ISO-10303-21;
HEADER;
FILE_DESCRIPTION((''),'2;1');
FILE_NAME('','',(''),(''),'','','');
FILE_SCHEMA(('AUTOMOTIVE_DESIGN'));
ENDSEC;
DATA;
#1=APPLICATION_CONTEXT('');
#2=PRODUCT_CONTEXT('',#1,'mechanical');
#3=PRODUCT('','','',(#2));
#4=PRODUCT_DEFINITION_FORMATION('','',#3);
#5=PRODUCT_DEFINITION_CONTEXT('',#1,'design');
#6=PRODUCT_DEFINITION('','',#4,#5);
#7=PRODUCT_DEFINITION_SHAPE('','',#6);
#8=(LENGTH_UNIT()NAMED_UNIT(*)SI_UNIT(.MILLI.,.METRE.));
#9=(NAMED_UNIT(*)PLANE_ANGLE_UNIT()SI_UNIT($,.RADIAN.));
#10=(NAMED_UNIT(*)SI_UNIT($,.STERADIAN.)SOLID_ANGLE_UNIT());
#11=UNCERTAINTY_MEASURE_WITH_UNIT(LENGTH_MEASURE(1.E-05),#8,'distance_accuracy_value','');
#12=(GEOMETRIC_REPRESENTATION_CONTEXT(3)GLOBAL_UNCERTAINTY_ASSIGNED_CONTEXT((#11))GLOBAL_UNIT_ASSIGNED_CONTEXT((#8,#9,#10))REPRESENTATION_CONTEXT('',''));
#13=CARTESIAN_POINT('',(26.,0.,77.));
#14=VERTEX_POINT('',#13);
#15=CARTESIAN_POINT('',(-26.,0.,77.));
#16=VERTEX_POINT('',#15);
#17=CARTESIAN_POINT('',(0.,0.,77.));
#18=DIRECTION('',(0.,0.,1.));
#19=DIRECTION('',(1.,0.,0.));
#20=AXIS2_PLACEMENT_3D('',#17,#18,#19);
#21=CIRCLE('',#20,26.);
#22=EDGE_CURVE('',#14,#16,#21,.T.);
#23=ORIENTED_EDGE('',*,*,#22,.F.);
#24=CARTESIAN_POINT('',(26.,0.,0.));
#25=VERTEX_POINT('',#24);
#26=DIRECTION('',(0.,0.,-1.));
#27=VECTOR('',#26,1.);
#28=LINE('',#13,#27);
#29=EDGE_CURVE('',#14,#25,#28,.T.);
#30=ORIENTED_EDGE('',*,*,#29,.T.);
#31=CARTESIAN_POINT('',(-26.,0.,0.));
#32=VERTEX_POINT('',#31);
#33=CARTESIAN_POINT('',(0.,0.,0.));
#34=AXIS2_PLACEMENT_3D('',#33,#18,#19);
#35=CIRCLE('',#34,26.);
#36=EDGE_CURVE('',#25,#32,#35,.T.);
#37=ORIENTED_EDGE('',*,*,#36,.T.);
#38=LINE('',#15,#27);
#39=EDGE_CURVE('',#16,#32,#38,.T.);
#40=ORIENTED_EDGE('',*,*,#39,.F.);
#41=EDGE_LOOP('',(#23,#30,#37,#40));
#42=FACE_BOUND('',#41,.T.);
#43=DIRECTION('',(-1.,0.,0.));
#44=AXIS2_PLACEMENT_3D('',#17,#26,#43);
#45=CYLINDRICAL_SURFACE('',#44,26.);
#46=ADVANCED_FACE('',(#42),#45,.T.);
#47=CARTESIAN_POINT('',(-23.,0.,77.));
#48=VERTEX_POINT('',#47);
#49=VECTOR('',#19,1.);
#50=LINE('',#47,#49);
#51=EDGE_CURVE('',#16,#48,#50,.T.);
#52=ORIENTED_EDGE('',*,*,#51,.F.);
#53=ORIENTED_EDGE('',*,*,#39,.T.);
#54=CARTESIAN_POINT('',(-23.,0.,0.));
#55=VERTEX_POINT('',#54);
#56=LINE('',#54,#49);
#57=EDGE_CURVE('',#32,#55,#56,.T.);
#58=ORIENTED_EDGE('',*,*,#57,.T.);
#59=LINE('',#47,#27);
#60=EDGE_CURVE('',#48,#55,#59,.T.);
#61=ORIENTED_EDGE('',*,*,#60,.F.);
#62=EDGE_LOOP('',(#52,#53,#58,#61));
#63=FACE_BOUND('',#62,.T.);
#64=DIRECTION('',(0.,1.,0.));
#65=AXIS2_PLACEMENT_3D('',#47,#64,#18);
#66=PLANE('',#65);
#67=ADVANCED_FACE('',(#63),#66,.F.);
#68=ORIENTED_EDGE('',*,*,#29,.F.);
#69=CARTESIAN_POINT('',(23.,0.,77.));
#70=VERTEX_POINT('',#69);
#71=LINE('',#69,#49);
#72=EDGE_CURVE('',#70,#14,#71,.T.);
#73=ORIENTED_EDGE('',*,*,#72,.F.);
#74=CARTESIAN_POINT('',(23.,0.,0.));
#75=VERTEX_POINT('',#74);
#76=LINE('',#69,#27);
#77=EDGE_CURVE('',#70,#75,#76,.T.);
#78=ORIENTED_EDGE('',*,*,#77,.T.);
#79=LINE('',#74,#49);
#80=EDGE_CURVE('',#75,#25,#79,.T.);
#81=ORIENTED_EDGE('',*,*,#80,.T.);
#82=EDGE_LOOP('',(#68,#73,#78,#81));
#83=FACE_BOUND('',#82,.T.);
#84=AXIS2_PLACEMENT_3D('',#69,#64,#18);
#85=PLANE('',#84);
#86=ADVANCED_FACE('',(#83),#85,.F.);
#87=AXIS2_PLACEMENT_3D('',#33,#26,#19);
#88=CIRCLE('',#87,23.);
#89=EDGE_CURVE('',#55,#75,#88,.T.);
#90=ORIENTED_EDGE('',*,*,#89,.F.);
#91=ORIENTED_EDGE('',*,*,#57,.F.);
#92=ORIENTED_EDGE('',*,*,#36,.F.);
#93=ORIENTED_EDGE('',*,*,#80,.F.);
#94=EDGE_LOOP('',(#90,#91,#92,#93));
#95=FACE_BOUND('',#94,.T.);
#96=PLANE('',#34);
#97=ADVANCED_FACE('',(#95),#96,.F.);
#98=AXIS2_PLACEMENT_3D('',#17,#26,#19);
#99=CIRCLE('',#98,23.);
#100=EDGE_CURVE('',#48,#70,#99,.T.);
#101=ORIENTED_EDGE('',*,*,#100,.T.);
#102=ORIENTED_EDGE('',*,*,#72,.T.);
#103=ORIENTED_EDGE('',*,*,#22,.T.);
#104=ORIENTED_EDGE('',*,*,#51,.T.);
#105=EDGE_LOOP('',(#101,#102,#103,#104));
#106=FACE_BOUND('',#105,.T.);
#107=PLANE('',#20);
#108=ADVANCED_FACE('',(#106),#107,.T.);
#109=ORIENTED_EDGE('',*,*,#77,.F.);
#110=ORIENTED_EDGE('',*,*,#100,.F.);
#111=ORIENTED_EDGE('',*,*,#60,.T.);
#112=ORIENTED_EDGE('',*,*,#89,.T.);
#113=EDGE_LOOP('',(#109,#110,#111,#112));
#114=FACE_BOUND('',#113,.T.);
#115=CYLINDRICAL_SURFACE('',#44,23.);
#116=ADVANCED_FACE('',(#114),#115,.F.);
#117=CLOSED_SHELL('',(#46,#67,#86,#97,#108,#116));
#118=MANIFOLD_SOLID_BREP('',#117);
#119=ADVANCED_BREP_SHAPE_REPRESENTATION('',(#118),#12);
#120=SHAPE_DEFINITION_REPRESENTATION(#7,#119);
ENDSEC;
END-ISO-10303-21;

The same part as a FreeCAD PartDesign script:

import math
import FreeCAD as App
import Part
import Sketcher
from FreeCAD import Vector
Q = App.Units.Quantity

doc = App.newDocument("Part")
params = doc.addObject("Spreadsheet::Sheet", "Params")
for row, (alias, value) in enumerate([
    ("sketch1_radius", "23 mm"),
    ("sketch1_radius2", "26 mm"),
    ("pad1_length", "77 mm"),
], start=1):
    params.set(f"A{row}", alias)
    params.set(f"B{row}", "=" + value)
    params.setAlias(f"B{row}", alias)

body = doc.addObject("PartDesign::Body", "Body")

# Sketch on XY plane
sketch1 = body.newObject("Sketcher::SketchObject", "Sketch")
sketch1.AttachmentSupport = (doc.getObject("XY_Plane"), [""])
sketch1.MapMode = "FlatFace"
sketch1.addGeometry(Part.LineSegment(Vector(-26, 0, 0), Vector(-23, 0, 0)), False)
sketch1.addGeometry(Part.ArcOfCircle(Part.Circle(Vector(0, 0, 0), Vector(0, 0, 1), 23), math.radians(0), math.radians(180)), False)
sketch1.addGeometry(Part.LineSegment(Vector(23, 0, 0), Vector(26, 0, 0)), False)
sketch1.addGeometry(Part.ArcOfCircle(Part.Circle(Vector(0, 0, 0), Vector(0, 0, 1), 26), math.radians(0), math.radians(180)), False)
sketch1.addConstraint(Sketcher.Constraint("Coincident", 0, 2, 1, 2))
sketch1.addConstraint(Sketcher.Constraint("Coincident", 1, 1, 2, 1))
sketch1.addConstraint(Sketcher.Constraint("Coincident", 2, 2, 3, 1))
sketch1.addConstraint(Sketcher.Constraint("Coincident", 3, 2, 0, 1))
sketch1.addConstraint(Sketcher.Constraint("Horizontal", 0))
sketch1.addConstraint(Sketcher.Constraint("Horizontal", 2))
sketch1.addConstraint(Sketcher.Constraint("Coincident", 1, 3, -1, 1))
sketch1.addConstraint(Sketcher.Constraint("Coincident", 3, 3, -1, 1))
sketch1.addConstraint(Sketcher.Constraint("PointOnObject", 0, 2, -1))
sketch1.addConstraint(Sketcher.Constraint("PointOnObject", 1, 1, -1))
sketch1.addConstraint(Sketcher.Constraint("Radius", 1, Q("23 mm")))
sketch1.addConstraint(Sketcher.Constraint("Radius", 3, Q("26 mm")))
sketch1.setExpression("Constraints[10]", "Params.sketch1_radius")
sketch1.setExpression("Constraints[11]", "Params.sketch1_radius2")
pad1 = body.newObject("PartDesign::Pad", "Pad")
pad1.Profile = sketch1
pad1.setExpression("Length", "Params.pad1_length")

doc.recompute()
